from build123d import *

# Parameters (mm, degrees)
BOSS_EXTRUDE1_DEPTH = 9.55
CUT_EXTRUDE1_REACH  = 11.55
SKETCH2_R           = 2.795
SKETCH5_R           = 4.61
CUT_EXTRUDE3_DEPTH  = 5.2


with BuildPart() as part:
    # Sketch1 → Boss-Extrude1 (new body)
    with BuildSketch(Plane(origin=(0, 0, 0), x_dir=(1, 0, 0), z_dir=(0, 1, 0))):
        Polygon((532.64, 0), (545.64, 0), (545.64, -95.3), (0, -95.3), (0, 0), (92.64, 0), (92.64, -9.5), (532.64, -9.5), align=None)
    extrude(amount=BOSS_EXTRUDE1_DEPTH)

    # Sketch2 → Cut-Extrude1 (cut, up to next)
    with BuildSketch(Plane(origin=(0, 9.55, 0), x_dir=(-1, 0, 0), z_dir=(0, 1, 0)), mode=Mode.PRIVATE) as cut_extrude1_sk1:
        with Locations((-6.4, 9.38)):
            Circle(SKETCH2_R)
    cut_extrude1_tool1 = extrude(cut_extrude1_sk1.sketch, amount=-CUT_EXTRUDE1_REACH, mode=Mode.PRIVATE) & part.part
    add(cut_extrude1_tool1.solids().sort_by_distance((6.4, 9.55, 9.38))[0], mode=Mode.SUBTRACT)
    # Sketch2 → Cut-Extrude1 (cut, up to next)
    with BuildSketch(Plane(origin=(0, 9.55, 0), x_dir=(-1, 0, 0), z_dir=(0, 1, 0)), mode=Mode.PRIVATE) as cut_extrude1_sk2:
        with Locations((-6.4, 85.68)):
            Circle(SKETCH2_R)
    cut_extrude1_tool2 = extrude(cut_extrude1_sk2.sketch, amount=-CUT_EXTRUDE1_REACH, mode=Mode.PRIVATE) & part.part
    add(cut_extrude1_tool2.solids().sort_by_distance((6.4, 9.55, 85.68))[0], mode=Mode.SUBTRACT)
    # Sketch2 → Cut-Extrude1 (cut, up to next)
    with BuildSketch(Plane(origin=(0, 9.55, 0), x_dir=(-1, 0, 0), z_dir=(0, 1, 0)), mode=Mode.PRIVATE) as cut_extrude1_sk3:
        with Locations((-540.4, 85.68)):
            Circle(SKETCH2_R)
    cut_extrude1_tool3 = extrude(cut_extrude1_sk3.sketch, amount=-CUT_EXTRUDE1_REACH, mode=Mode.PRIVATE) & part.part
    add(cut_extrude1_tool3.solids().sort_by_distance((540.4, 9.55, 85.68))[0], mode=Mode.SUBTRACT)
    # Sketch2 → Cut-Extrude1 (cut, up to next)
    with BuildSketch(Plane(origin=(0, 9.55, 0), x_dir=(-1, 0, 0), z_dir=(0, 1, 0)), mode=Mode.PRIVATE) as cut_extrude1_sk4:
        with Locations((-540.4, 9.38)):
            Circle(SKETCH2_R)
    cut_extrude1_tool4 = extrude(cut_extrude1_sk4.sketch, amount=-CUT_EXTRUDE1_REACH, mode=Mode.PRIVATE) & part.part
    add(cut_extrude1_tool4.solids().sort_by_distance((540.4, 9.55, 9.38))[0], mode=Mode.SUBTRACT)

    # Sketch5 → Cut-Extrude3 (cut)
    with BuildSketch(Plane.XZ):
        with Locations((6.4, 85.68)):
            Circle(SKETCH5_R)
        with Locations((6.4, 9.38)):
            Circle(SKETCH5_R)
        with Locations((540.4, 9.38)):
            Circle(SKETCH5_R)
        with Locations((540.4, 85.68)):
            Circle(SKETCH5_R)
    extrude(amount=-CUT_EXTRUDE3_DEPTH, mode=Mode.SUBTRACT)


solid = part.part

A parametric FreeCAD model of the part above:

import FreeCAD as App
import Part
import Sketcher

doc = App.newDocument("Part")
body = doc.addObject("PartDesign::Body", "Body")

sketch1 = body.newObject("Sketcher::SketchObject", "Sketch")
sketch1.AttachmentSupport = (doc.getObject("XZ_Plane"), [""])
sketch1.MapMode = "FlatFace"
sketch1.addGeometry([
    Part.LineSegment(App.Vector(545.64, 0, 0), App.Vector(532.64, 0, 0)),
    Part.LineSegment(App.Vector(532.64, 0, 0), App.Vector(532.64, 9.5, 0)),
    Part.LineSegment(App.Vector(532.64, 9.5, 0), App.Vector(92.64, 9.5, 0)),
    Part.LineSegment(App.Vector(92.64, 9.5, 0), App.Vector(92.64, 0, 0)),
    Part.LineSegment(App.Vector(92.64, 0, 0), App.Vector(0, 0, 0)),
    Part.LineSegment(App.Vector(0, 0, 0), App.Vector(0, 95.3, 0)),
    Part.LineSegment(App.Vector(0, 95.3, 0), App.Vector(545.64, 95.3, 0)),
    Part.LineSegment(App.Vector(545.64, 95.3, 0), App.Vector(545.64, 0, 0)),
], False)
sketch1.addConstraint([
    Sketcher.Constraint("Coincident", 0, 2, 1, 1),
    Sketcher.Constraint("Coincident", 1, 2, 2, 1),
    Sketcher.Constraint("Coincident", 2, 2, 3, 1),
    Sketcher.Constraint("Coincident", 3, 2, 4, 1),
    Sketcher.Constraint("Coincident", 4, 2, 5, 1),
    Sketcher.Constraint("Coincident", 5, 2, 6, 1),
    Sketcher.Constraint("Coincident", 6, 2, 7, 1),
    Sketcher.Constraint("Coincident", 7, 2, 0, 1),
    Sketcher.Constraint("Horizontal", 0),
    Sketcher.Constraint("Vertical", 1),
    Sketcher.Constraint("Horizontal", 2),
    Sketcher.Constraint("Vertical", 3),
    Sketcher.Constraint("Horizontal", 4),
    Sketcher.Constraint("Vertical", 5),
    Sketcher.Constraint("Horizontal", 6),
    Sketcher.Constraint("Vertical", 7),
    Sketcher.Constraint("Coincident", 4, 2, -1, 1),
    Sketcher.Constraint("PointOnObject", 0, 2, -1),
    Sketcher.Constraint("DistanceX", 0, 2, 0, 1, 13.0),
    Sketcher.Constraint("DistanceX", 2, 2, 2, 1, 440.0),
    Sketcher.Constraint("DistanceY", 1, 1, 1, 2, 9.5),
    Sketcher.Constraint("DistanceY", 5, 1, 5, 2, 95.3),
    Sketcher.Constraint("DistanceX", 4, 2, 4, 1, 92.64),
])
pad1 = body.newObject("PartDesign::Pad", "Pad")
pad1.Profile = sketch1
pad1.Length = 9.55
pad1.Reversed = True

sketch2 = body.newObject("Sketcher::SketchObject", "Sketch001")
sketch2.AttachmentSupport = (doc.getObject("XZ_Plane"), [""])
sketch2.MapMode = "FlatFace"
sketch2.AttachmentOffset = App.Placement(App.Vector(0, 0, -9.55), App.Rotation())
sketch2.addGeometry(Part.Circle(App.Vector(6.4, 9.38, 0), App.Vector(0, 0, 1), 2.795), False)
sketch2.addConstraint([
    Sketcher.Constraint("Diameter", 0, 5.59),
    Sketcher.Constraint("DistanceX", -1, 1, 0, 3, 6.4),
    Sketcher.Constraint("DistanceY", -1, 1, 0, 3, 9.38),
])
pocket1 = body.newObject("PartDesign::Pocket", "Pocket")
pocket1.Profile = sketch2
pocket1.Type = "UpToFirst"
pocket1.Reversed = True

sketch3 = body.newObject("Sketcher::SketchObject", "Sketch002")
sketch3.AttachmentSupport = (doc.getObject("XZ_Plane"), [""])
sketch3.MapMode = "FlatFace"
sketch3.AttachmentOffset = App.Placement(App.Vector(0, 0, -9.55), App.Rotation())
sketch3.addGeometry(Part.Circle(App.Vector(6.4, 85.68, 0), App.Vector(0, 0, 1), 2.795), False)
sketch3.addConstraint([
    Sketcher.Constraint("Diameter", 0, 5.59),
    Sketcher.Constraint("DistanceX", -1, 1, 0, 3, 6.4),
    Sketcher.Constraint("DistanceY", -1, 1, 0, 3, 85.68),
])
pocket2 = body.newObject("PartDesign::Pocket", "Pocket001")
pocket2.Profile = sketch3
pocket2.Type = "UpToFirst"
pocket2.Reversed = True

sketch4 = body.newObject("Sketcher::SketchObject", "Sketch003")
sketch4.AttachmentSupport = (doc.getObject("XZ_Plane"), [""])
sketch4.MapMode = "FlatFace"
sketch4.AttachmentOffset = App.Placement(App.Vector(0, 0, -9.55), App.Rotation())
sketch4.addGeometry(Part.Circle(App.Vector(540.4, 85.68, 0), App.Vector(0, 0, 1), 2.795), False)
sketch4.addConstraint([
    Sketcher.Constraint("Diameter", 0, 5.59),
    Sketcher.Constraint("DistanceX", -1, 1, 0, 3, 540.4),
    Sketcher.Constraint("DistanceY", -1, 1, 0, 3, 85.68),
])
pocket3 = body.newObject("PartDesign::Pocket", "Pocket002")
pocket3.Profile = sketch4
pocket3.Type = "UpToFirst"
pocket3.Reversed = True

sketch5 = body.newObject("Sketcher::SketchObject", "Sketch004")
sketch5.AttachmentSupport = (doc.getObject("XZ_Plane"), [""])
sketch5.MapMode = "FlatFace"
sketch5.AttachmentOffset = App.Placement(App.Vector(0, 0, -9.55), App.Rotation())
sketch5.addGeometry(Part.Circle(App.Vector(540.4, 9.38, 0), App.Vector(0, 0, 1), 2.795), False)
sketch5.addConstraint([
    Sketcher.Constraint("Diameter", 0, 5.59),
    Sketcher.Constraint("DistanceX", -1, 1, 0, 3, 540.4),
    Sketcher.Constraint("DistanceY", -1, 1, 0, 3, 9.38),
])
pocket4 = body.newObject("PartDesign::Pocket", "Pocket003")
pocket4.Profile = sketch5
pocket4.Type = "UpToFirst"
pocket4.Reversed = True

sketch6 = body.newObject("Sketcher::SketchObject", "Sketch005")
sketch6.AttachmentSupport = (doc.getObject("XZ_Plane"), [""])
sketch6.MapMode = "FlatFace"
sketch6.addGeometry([
    Part.Circle(App.Vector(6.4, 85.68, 0), App.Vector(0, 0, 1), 4.61),
    Part.Circle(App.Vector(6.4, 9.38, 0), App.Vector(0, 0, 1), 4.61),
    Part.Circle(App.Vector(540.4, 9.38, 0), App.Vector(0, 0, 1), 4.61),
    Part.Circle(App.Vector(540.4, 85.68, 0), App.Vector(0, 0, 1), 4.61),
], False)
sketch6.addConstraint([
    Sketcher.Constraint("Equal", 0, 1),
    Sketcher.Constraint("Equal", 1, 2),
    Sketcher.Constraint("Equal", 2, 3),
    Sketcher.Constraint("Horizontal", 1, 3, 2, 3),
    Sketcher.Constraint("Horizontal", 0, 3, 3, 3),
    Sketcher.Constraint("Vertical", 0, 3, 1, 3),
    Sketcher.Constraint("Vertical", 2, 3, 3, 3),
    Sketcher.Constraint("Diameter", 0, 9.22),
    Sketcher.Constraint("DistanceX", 1, 3, 2, 3, 534.0),
    Sketcher.Constraint("DistanceX", -1, 1, 0, 3, 6.4),
    Sketcher.Constraint("DistanceY", 1, 3, 0, 3, 76.3),
    Sketcher.Constraint("DistanceY", -1, 1, 0, 3, 85.68),
])
pocket5 = body.newObject("PartDesign::Pocket", "Pocket004")
pocket5.Profile = sketch6
pocket5.Length = 5.2

doc.recompute()
